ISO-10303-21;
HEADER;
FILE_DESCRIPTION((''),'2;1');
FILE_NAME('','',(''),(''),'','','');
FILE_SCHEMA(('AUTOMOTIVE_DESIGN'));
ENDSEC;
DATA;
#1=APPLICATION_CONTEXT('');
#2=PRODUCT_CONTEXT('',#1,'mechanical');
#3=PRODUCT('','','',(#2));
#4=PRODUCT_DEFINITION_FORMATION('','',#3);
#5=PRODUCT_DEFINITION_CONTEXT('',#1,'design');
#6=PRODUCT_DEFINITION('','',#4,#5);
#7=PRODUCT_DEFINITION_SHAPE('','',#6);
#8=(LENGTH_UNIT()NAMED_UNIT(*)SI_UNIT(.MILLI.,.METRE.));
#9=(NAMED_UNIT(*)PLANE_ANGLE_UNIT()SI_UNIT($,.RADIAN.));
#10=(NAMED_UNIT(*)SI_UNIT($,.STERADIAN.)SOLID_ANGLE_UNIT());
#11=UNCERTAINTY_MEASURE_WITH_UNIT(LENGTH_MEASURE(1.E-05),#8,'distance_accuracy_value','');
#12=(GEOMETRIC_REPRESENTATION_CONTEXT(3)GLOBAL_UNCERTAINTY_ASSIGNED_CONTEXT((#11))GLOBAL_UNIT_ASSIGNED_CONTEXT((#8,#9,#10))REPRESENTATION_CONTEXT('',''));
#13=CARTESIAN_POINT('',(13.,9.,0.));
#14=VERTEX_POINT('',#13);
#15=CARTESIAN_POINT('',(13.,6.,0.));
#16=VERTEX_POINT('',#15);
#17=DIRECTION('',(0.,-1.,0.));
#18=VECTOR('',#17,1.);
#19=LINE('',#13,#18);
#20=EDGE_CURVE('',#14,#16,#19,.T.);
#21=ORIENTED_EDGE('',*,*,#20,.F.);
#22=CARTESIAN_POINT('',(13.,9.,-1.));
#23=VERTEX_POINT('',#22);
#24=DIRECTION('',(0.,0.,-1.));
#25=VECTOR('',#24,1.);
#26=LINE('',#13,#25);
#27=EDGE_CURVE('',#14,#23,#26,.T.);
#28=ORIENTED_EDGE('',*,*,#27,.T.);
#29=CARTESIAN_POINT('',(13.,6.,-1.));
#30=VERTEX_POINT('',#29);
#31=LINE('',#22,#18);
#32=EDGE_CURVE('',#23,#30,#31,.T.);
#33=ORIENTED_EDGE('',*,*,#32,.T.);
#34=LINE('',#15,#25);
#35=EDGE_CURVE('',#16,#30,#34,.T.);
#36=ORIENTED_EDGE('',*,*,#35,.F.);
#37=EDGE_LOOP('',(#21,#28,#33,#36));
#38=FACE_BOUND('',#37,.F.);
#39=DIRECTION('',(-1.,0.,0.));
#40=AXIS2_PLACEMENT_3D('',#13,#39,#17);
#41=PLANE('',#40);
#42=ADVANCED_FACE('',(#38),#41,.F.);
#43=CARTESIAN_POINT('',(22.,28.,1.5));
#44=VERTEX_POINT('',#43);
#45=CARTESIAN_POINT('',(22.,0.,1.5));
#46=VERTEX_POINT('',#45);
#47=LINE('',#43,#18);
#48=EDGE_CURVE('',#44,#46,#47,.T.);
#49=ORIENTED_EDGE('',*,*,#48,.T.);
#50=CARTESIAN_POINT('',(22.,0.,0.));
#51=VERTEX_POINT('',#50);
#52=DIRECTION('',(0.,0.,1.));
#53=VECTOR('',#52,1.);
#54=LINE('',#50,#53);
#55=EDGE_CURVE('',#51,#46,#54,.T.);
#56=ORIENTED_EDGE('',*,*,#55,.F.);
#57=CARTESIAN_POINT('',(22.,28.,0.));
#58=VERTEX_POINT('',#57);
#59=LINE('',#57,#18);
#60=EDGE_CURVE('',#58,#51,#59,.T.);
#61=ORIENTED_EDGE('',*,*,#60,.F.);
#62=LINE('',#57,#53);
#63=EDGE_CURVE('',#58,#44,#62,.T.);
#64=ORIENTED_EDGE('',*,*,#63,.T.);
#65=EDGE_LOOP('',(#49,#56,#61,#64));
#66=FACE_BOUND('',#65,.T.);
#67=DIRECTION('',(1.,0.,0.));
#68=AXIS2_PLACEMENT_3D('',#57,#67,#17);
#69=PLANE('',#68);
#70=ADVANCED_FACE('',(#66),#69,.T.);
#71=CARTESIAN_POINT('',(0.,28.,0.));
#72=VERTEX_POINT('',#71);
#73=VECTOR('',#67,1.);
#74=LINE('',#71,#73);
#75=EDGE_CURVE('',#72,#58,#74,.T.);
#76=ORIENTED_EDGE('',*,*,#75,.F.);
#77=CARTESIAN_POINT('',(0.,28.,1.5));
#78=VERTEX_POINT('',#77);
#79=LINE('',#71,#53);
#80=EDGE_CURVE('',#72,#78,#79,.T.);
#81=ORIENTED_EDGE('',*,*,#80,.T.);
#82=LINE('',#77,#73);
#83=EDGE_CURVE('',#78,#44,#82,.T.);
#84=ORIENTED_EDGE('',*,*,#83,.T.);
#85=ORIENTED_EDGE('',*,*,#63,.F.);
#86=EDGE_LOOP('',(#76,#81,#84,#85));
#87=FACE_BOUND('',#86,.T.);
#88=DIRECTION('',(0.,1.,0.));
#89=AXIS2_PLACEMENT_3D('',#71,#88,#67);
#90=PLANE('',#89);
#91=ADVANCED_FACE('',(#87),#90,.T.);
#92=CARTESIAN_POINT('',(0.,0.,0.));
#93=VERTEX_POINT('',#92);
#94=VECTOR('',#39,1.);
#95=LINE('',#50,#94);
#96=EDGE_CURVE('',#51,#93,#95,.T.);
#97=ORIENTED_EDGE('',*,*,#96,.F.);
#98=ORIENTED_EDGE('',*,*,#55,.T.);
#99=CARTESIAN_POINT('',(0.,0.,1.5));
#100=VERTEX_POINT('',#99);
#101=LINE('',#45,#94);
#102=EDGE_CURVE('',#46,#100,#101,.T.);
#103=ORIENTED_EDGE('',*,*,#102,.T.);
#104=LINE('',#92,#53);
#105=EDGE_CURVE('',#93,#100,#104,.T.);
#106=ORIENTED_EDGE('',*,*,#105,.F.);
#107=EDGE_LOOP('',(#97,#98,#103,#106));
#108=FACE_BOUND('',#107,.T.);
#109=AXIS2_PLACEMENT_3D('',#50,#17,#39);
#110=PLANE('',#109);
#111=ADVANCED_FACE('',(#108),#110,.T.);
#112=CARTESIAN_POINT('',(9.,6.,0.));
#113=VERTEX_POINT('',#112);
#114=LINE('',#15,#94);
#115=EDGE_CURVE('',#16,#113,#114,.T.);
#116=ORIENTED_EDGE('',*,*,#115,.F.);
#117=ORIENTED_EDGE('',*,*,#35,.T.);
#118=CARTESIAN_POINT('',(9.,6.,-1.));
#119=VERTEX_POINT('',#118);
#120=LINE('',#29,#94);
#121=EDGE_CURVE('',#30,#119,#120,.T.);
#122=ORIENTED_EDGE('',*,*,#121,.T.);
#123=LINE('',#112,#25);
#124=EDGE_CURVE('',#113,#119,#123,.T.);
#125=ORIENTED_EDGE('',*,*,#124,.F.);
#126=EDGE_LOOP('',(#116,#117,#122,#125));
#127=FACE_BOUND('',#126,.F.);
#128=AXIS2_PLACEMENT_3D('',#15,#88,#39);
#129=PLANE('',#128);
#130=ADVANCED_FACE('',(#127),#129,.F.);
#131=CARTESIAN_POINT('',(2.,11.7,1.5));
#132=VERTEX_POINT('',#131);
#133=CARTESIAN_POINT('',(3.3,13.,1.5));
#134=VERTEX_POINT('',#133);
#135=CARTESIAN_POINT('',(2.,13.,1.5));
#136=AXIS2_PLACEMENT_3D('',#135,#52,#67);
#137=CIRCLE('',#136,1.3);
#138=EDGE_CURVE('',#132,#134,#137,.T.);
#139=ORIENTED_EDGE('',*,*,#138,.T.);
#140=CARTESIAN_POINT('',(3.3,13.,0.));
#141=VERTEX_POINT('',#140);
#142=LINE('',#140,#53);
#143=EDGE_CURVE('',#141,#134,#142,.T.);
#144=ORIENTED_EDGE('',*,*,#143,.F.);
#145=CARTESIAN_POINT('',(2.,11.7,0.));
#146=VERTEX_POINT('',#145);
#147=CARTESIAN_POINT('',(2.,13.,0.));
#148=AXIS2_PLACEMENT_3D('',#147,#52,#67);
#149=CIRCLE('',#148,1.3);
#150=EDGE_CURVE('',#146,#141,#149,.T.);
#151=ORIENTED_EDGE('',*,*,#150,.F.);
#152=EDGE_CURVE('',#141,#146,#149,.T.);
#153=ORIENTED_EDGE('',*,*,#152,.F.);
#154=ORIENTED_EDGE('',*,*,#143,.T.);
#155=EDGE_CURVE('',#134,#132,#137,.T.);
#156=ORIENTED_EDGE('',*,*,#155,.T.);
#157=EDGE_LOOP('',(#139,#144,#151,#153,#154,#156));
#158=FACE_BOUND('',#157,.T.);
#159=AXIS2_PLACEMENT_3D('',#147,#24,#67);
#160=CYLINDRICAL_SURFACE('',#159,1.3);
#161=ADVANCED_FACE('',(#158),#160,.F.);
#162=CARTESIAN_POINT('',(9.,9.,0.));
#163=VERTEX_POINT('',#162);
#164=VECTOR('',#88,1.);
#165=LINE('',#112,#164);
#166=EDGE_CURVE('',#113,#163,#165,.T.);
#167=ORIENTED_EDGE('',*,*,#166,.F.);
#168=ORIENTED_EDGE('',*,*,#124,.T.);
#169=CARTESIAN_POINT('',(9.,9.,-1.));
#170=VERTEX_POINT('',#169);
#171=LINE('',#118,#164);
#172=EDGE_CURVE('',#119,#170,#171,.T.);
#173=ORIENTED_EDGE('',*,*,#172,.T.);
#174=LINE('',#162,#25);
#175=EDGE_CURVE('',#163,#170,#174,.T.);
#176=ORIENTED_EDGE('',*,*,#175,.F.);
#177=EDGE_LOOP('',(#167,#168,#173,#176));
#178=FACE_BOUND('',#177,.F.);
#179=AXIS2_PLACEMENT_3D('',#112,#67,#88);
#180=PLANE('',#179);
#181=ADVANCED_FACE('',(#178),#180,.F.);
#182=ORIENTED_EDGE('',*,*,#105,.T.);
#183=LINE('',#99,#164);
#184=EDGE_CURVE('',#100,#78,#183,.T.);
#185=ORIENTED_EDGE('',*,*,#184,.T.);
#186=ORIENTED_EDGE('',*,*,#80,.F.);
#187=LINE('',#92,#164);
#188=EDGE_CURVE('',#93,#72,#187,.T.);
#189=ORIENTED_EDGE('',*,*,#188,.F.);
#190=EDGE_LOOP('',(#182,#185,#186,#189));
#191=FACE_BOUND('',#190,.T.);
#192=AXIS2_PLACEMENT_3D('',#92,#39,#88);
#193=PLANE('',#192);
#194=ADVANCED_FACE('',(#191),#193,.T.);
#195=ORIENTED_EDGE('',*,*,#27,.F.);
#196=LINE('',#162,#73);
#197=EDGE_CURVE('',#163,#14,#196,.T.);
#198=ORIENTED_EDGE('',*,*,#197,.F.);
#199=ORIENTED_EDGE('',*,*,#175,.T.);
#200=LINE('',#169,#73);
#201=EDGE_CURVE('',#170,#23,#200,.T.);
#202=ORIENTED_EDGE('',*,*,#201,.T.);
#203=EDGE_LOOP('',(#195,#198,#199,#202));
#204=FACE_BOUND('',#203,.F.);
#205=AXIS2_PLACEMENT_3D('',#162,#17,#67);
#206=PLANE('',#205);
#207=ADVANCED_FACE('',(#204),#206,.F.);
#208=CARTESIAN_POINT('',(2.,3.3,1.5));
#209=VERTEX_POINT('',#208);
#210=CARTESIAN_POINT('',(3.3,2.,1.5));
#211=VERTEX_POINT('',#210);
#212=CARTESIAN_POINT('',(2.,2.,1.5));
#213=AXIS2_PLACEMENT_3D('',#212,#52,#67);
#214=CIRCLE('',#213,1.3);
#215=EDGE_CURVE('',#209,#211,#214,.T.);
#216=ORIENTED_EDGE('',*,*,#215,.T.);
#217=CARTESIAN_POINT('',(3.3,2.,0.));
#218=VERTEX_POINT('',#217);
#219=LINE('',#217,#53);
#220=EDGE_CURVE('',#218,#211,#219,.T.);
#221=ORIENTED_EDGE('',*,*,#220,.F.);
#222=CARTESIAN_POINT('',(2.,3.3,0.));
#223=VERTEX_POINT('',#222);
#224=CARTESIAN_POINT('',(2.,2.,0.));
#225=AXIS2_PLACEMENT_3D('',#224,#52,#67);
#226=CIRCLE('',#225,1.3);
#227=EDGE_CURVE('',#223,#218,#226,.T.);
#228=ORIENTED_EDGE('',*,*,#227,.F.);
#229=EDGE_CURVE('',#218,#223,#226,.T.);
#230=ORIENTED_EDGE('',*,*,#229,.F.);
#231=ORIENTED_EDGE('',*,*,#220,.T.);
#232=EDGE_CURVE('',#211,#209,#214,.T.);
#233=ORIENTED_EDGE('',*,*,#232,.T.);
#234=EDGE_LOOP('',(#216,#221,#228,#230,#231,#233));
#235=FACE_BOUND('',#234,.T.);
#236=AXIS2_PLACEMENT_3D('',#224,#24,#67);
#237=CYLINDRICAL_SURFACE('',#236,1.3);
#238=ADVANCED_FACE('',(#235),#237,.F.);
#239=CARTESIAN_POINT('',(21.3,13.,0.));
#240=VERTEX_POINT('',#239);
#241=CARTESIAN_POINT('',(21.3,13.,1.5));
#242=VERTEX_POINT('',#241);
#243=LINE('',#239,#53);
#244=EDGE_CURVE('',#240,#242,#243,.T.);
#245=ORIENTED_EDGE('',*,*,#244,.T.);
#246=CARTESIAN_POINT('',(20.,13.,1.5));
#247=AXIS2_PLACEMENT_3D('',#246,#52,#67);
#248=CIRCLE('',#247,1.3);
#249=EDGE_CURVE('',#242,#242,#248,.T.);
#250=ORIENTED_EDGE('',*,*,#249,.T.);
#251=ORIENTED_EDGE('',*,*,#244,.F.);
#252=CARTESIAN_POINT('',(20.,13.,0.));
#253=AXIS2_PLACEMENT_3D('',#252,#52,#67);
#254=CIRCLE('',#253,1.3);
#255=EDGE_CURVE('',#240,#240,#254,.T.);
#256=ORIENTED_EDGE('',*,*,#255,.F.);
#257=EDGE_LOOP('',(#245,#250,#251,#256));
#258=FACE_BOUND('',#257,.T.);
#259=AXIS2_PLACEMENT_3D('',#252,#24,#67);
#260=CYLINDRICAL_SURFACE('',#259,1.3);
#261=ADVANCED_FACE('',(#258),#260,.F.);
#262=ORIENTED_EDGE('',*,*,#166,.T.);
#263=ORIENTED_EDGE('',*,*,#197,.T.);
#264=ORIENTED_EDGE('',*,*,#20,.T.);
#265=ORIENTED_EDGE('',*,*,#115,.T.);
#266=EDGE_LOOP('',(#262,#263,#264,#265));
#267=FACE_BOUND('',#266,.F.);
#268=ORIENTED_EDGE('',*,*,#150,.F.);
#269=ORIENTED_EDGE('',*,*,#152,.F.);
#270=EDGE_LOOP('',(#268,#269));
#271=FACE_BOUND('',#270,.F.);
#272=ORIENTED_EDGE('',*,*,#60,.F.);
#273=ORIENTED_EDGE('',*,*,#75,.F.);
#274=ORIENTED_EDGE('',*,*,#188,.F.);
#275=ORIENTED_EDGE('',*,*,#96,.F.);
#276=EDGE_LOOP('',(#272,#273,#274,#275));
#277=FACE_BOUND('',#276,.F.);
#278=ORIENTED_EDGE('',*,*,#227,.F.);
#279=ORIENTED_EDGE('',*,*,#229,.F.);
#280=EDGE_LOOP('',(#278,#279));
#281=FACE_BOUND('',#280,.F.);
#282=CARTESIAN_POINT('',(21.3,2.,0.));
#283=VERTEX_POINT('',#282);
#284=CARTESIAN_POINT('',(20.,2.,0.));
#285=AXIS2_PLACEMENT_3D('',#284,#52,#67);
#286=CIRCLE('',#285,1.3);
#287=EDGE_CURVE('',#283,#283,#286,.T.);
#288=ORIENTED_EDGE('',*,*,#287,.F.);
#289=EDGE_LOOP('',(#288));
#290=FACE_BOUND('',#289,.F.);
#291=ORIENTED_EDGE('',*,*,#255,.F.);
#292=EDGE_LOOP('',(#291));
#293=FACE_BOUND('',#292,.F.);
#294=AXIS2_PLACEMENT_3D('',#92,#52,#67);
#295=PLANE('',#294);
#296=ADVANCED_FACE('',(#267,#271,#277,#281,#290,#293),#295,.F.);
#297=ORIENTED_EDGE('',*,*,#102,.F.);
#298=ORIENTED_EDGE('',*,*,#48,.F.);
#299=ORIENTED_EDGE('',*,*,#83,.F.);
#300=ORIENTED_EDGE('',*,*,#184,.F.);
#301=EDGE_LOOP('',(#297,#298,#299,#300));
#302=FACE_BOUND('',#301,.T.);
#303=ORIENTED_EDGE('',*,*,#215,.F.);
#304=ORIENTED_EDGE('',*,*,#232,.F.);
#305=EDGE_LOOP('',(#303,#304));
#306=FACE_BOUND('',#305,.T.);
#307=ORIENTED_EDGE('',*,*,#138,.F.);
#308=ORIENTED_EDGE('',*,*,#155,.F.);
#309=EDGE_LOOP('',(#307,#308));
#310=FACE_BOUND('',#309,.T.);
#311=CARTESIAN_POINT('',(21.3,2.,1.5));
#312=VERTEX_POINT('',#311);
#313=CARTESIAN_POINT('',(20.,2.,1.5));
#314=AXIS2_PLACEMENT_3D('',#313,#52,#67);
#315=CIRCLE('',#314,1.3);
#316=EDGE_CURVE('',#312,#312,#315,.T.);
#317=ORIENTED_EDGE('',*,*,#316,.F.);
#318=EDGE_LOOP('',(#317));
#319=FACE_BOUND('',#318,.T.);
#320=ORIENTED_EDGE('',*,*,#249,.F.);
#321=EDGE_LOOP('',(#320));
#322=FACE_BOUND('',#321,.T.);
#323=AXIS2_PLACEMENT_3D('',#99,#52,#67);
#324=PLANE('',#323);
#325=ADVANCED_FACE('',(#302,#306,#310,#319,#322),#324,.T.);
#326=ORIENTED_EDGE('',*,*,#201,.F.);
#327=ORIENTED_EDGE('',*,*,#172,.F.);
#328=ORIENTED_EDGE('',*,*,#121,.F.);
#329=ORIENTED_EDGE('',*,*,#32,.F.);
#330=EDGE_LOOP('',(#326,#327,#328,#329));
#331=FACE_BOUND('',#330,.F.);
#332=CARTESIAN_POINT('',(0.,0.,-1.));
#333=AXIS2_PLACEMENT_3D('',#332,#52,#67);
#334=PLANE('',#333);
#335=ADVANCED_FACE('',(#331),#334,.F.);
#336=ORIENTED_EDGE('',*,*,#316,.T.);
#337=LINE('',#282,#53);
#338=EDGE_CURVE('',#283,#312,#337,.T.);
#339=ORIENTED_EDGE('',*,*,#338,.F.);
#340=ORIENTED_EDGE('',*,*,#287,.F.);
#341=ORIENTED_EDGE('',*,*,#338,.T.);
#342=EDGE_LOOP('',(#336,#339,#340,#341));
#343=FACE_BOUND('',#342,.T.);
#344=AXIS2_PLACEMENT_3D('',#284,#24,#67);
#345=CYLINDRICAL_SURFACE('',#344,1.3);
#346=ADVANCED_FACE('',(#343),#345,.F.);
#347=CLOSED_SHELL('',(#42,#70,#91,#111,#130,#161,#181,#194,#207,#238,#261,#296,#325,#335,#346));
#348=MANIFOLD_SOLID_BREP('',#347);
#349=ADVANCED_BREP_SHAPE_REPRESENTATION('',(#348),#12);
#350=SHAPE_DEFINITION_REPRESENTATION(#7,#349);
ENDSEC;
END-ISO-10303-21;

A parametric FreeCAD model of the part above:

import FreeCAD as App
import Part
import Sketcher
from FreeCAD import Vector
Q = App.Units.Quantity


def add_polygon(sketch, points):
    """Adds a closed chain of lines whose ends are joined by coincident constraints."""
    first, n = sketch.GeometryCount, len(points)
    for a, b in zip(points, points[1:] + points[:1]):
        sketch.addGeometry(Part.LineSegment(App.Vector(*a, 0), App.Vector(*b, 0)), False)
    for i in range(n):
        sketch.addConstraint(Sketcher.Constraint("Coincident", first + i, 2, first + (i + 1) % n, 1))

doc = App.newDocument("Part")
params = doc.addObject("Spreadsheet::Sheet", "Params")
for row, (alias, value) in enumerate([
    ("sketch1_diameter", "2.6 mm"),
    ("sketch1_width", "22 mm"),
    ("sketch1_height", "28 mm"),
    ("pad1_length", "1.5 mm"),
    ("sketch2_width", "4 mm"),
    ("sketch2_height", "3 mm"),
    ("pad2_length", "1 mm"),
], start=1):
    params.set(f"A{row}", alias)
    params.set(f"B{row}", "=" + value)
    params.setAlias(f"B{row}", alias)

body = doc.addObject("PartDesign::Body", "Body")

# Sketch on XY plane
sketch1 = body.newObject("Sketcher::SketchObject", "Sketch")
sketch1.AttachmentSupport = (doc.getObject("XY_Plane"), [""])
sketch1.MapMode = "FlatFace"
add_polygon(sketch1, [(0, 28), (0, 0), (22, 0), (22, 28)])  # lines 0-3
sketch1.addGeometry(Part.Circle(Vector(2, 2, 0), Vector(0, 0, 1), 1.3), False)  # 4
sketch1.addGeometry(Part.Circle(Vector(2, 13, 0), Vector(0, 0, 1), 1.3), False)  # 5
sketch1.addGeometry(Part.Circle(Vector(20, 2, 0), Vector(0, 0, 1), 1.3), False)  # 6
sketch1.addGeometry(Part.Circle(Vector(20, 13, 0), Vector(0, 0, 1), 1.3), False)  # 7
sketch1.addConstraint([
    Sketcher.Constraint("Vertical", 0),
    Sketcher.Constraint("Horizontal", 1),
    Sketcher.Constraint("Vertical", 2),
    Sketcher.Constraint("Horizontal", 3),
    Sketcher.Constraint("Coincident", 0, 2, -1, 1),
    Sketcher.Constraint("Equal", 4, 5),
    Sketcher.Constraint("Equal", 5, 6),
    Sketcher.Constraint("Equal", 6, 7),
    Sketcher.Constraint("Horizontal", 4, 3, 6, 3),
    Sketcher.Constraint("Horizontal", 5, 3, 7, 3),
    Sketcher.Constraint("Vertical", 4, 3, 5, 3),
    Sketcher.Constraint("Vertical", 6, 3, 7, 3),
    Sketcher.Constraint("Diameter", 4, Q("2.6 mm")),
    Sketcher.Constraint("DistanceX", 1, 1, 1, 2, Q("22 mm")),
    Sketcher.Constraint("DistanceY", 0, 2, 0, 1, Q("28 mm")),
    Sketcher.Constraint("DistanceX", -1, 1, 4, 3, Q("2 mm")),
    Sketcher.Constraint("DistanceY", -1, 1, 4, 3, Q("2 mm")),
    Sketcher.Constraint("DistanceY", 4, 3, 5, 3, Q("11 mm")),
    Sketcher.Constraint("DistanceX", 4, 3, 6, 3, Q("18 mm")),
])
sketch1.setExpression("Constraints[16]", "Params.sketch1_diameter")
sketch1.setExpression("Constraints[17]", "Params.sketch1_width")
sketch1.setExpression("Constraints[18]", "Params.sketch1_height")
pad1 = body.newObject("PartDesign::Pad", "Pad")
pad1.Profile = sketch1
pad1.setExpression("Length", "Params.pad1_length")

# Sketch on XY plane
sketch2 = body.newObject("Sketcher::SketchObject", "Sketch001")
sketch2.AttachmentSupport = (doc.getObject("XY_Plane"), [""])
sketch2.MapMode = "FlatFace"
add_polygon(sketch2, [(13, 9), (9, 9), (9, 6), (13, 6)])  # lines 0-3
sketch2.addConstraint([
    Sketcher.Constraint("Horizontal", 0),
    Sketcher.Constraint("Vertical", 1),
    Sketcher.Constraint("Horizontal", 2),
    Sketcher.Constraint("Vertical", 3),
    Sketcher.Constraint("DistanceX", 0, 2, 0, 1, Q("4 mm")),
    Sketcher.Constraint("DistanceY", 1, 2, 1, 1, Q("3 mm")),
    Sketcher.Constraint("DistanceX", -1, 1, 0, 2, Q("9 mm")),
    Sketcher.Constraint("DistanceY", -1, 1, 0, 2, Q("9 mm")),
])
sketch2.setExpression("Constraints[8]", "Params.sketch2_width")
sketch2.setExpression("Constraints[9]", "Params.sketch2_height")
pad2 = body.newObject("PartDesign::Pad", "Pad001")
pad2.Profile = sketch2
pad2.setExpression("Length", "Params.pad2_length")
pad2.Reversed = True

doc.recompute()
